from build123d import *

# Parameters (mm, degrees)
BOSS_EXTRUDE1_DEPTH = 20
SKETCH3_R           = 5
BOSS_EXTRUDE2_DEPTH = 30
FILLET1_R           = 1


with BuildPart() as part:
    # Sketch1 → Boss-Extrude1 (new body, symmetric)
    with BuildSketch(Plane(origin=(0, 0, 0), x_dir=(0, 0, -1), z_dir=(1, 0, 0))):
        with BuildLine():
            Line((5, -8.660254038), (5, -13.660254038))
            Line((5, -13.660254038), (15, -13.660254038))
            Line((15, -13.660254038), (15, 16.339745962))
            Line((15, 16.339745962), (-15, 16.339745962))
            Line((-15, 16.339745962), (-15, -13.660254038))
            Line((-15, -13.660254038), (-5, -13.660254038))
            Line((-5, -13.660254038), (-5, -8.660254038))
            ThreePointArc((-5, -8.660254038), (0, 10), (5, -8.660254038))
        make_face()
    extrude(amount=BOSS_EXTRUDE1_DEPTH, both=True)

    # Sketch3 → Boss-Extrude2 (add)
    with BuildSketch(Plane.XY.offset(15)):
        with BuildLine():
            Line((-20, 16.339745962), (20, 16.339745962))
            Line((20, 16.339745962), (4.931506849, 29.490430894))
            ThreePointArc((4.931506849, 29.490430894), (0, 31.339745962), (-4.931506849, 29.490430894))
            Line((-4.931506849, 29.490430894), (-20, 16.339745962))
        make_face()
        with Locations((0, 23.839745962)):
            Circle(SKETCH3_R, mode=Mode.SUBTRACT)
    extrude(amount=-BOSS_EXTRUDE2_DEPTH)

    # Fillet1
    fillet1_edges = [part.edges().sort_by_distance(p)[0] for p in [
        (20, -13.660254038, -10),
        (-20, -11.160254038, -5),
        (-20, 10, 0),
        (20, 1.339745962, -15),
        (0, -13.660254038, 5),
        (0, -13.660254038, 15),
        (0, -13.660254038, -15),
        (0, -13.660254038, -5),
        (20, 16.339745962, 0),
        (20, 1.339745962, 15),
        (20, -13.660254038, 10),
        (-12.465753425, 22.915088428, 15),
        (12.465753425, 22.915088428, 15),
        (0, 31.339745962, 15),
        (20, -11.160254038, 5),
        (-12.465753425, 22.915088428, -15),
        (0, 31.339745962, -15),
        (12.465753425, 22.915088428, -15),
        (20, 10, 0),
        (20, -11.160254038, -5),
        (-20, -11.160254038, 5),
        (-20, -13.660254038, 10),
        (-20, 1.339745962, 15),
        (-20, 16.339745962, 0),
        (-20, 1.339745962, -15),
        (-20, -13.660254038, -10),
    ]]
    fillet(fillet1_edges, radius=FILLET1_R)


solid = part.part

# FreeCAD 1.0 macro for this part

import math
import FreeCAD as App
import Part
import Sketcher
from FreeCAD import Vector


def edges_at(feature, points):
    """Names of the edges that pass closest to the given points."""
    edges = feature.Shape.Edges
    near = lambda p: min(range(len(edges)), key=lambda i: edges[i].distToShape(Part.Vertex(*p))[0])
    return sorted({f"Edge{near(p) + 1}" for p in points})

doc = App.newDocument("Part")
params = doc.addObject("Spreadsheet::Sheet", "Params")
for row, (alias, value) in enumerate([
    ("sketch1_radius", "10 mm"),
    ("sketch1_width", "5 mm"),
    ("sketch1_width2", "30 mm"),
    ("sketch1_height", "10 mm"),
    ("pad1_length", "40 mm"),
    ("sketch2_diameter", "10 mm"),
    ("sketch2_radius", "7.5 mm"),
    ("sketch2_width", "40 mm"),
    ("sketch2_length", "20 mm"),
    ("pad2_length", "30 mm"),
    ("fillet_radius", "1 mm"),
], start=1):
    params.set(f"A{row}", alias)
    params.set(f"B{row}", "=" + value)
    params.setAlias(f"B{row}", alias)

body = doc.addObject("PartDesign::Body", "Body")

sketch1 = body.newObject("Sketcher::SketchObject", "Sketch")
sketch1.AttachmentSupport = (doc.getObject("YZ_Plane"), [""])
sketch1.MapMode = "FlatFace"
sketch1.addGeometry([
    Part.LineSegment(Vector(-9, -5, 0), Vector(-14, -5, 0)),
    Part.LineSegment(Vector(-14, -5, 0), Vector(-14, -15, 0)),
    Part.LineSegment(Vector(-14, -15, 0), Vector(16, -15, 0)),
    Part.LineSegment(Vector(16, -15, 0), Vector(16, 15, 0)),
    Part.LineSegment(Vector(16, 15, 0), Vector(-14, 15, 0)),
    Part.LineSegment(Vector(-14, 15, 0), Vector(-14, 5, 0)),
    Part.LineSegment(Vector(-14, 5, 0), Vector(-9, 5, 0)),
    Part.ArcOfCircle(Part.Circle(Vector(0, 0, 0), Vector(0, 0, 1), 10), math.radians(-150), math.radians(150)),
], False)
sketch1.addConstraint([
    Sketcher.Constraint("Coincident", 0, 2, 1, 1),
    Sketcher.Constraint("Coincident", 1, 2, 2, 1),
    Sketcher.Constraint("Coincident", 2, 2, 3, 1),
    Sketcher.Constraint("Coincident", 3, 2, 4, 1),
    Sketcher.Constraint("Coincident", 4, 2, 5, 1),
    Sketcher.Constraint("Coincident", 5, 2, 6, 1),
    Sketcher.Constraint("Coincident", 6, 2, 7, 2),
    Sketcher.Constraint("Coincident", 7, 1, 0, 1),
    Sketcher.Constraint("Horizontal", 0),
    Sketcher.Constraint("Vertical", 1),
    Sketcher.Constraint("Horizontal", 2),
    Sketcher.Constraint("Vertical", 3),
    Sketcher.Constraint("Horizontal", 4),
    Sketcher.Constraint("Vertical", 5),
    Sketcher.Constraint("Horizontal", 6),
    Sketcher.Constraint("Coincident", 7, 3, -1, 1),
    Sketcher.Constraint("Symmetric", 1, 2, 4, 2, -1),
    Sketcher.Constraint("Vertical", 6, 2, 7, 1),
    Sketcher.Constraint("Equal", 4, 3),
    Sketcher.Constraint("Radius", 7, 10.0),
    Sketcher.Constraint("DistanceX", 0, 2, 0, 1, 5.0),
    Sketcher.Constraint("DistanceX", 2, 1, 2, 2, 30.0),
    Sketcher.Constraint("DistanceY", 1, 2, 1, 1, 10.0),
])
sketch1.setExpression("Constraints[19]", "Params.sketch1_radius")
sketch1.setExpression("Constraints[20]", "Params.sketch1_width")
sketch1.setExpression("Constraints[21]", "Params.sketch1_width2")
sketch1.setExpression("Constraints[22]", "Params.sketch1_height")
pad1 = body.newObject("PartDesign::Pad", "Pad")
pad1.Profile = sketch1
pad1.setExpression("Length", "Params.pad1_length")
pad1.Midplane = True

sketch2 = body.newObject("Sketcher::SketchObject", "Sketch001")
sketch2.AttachmentSupport = (doc.getObject("XY_Plane"), [""])
sketch2.MapMode = "FlatFace"
sketch2.AttachmentOffset = App.Placement(Vector(0, 0, 15), App.Rotation())
sketch2.addGeometry([
    Part.LineSegment(Vector(-20, 16, 0), Vector(20, 16, 0)),
    Part.LineSegment(Vector(20, 16, 0), Vector(5, 29, 0)),
    Part.ArcOfCircle(Part.Circle(Vector(0, 24, 0), Vector(0, 0, 1), 8), math.radians(49), math.radians(131)),
    Part.LineSegment(Vector(-5, 29, 0), Vector(-20, 16, 0)),
    Part.Circle(Vector(0, 24, 0), Vector(0, 0, 1), 5),
], False)
sketch2.addConstraint([
    Sketcher.Constraint("Coincident", 0, 2, 1, 1),
    Sketcher.Constraint("Tangent", 1, 2, 2, 1),
    Sketcher.Constraint("Tangent", 2, 2, 3, 1),
    Sketcher.Constraint("Coincident", 3, 2, 0, 1),
    Sketcher.Constraint("Horizontal", 0),
    Sketcher.Constraint("Coincident", 4, 3, 2, 3),
    Sketcher.Constraint("Symmetric", 1, 2, 2, 2, -2),
    Sketcher.Constraint("Diameter", 4, 10.0),
    Sketcher.Constraint("Radius", 2, 7.5),
    Sketcher.Constraint("DistanceX", 0, 1, 0, 2, 40.0),
    Sketcher.Constraint("Distance", 1, 20.0),
    Sketcher.Constraint("DistanceY", -1, 1, 1, 2, 29.490431),
])
sketch2.setExpression("Constraints[7]", "Params.sketch2_diameter")
sketch2.setExpression("Constraints[8]", "Params.sketch2_radius")
sketch2.setExpression("Constraints[9]", "Params.sketch2_width")
sketch2.setExpression("Constraints[10]", "Params.sketch2_length")
pad2 = body.newObject("PartDesign::Pad", "Pad001")
pad2.Profile = sketch2
pad2.setExpression("Length", "Params.pad2_length")
pad2.Reversed = True
doc.recompute()

fillet = body.newObject("PartDesign::Fillet", "Fillet")
fillet.Base = (pad2, edges_at(pad2, [
    (20, -13.66, -10),
    (-20, -11.16, -5),
    (-20, 10, 0),
    (20, 1.34, -15),
    (0, -13.66, 5),
    (0, -13.66, 15),
    (0, -13.66, -15),
    (0, -13.66, -5),
    (20, 16.34, 0),
    (20, 1.34, 15),
    (20, -13.66, 10),
    (-12.466, 22.915, 15),
    (12.466, 22.915, 15),
    (0, 31.34, 15),
    (20, -11.16, 5),
    (-12.466, 22.915, -15),
    (0, 31.34, -15),
    (12.466, 22.915, -15),
    (20, 10, 0),
    (20, -11.16, -5),
    (-20, -11.16, 5),
    (-20, -13.66, 10),
    (-20, 1.34, 15),
    (-20, 16.34, 0),
    (-20, 1.34, -15),
    (-20, -13.66, -10),
]))
fillet.setExpression("Radius", "Params.fillet_radius")

doc.recompute()
